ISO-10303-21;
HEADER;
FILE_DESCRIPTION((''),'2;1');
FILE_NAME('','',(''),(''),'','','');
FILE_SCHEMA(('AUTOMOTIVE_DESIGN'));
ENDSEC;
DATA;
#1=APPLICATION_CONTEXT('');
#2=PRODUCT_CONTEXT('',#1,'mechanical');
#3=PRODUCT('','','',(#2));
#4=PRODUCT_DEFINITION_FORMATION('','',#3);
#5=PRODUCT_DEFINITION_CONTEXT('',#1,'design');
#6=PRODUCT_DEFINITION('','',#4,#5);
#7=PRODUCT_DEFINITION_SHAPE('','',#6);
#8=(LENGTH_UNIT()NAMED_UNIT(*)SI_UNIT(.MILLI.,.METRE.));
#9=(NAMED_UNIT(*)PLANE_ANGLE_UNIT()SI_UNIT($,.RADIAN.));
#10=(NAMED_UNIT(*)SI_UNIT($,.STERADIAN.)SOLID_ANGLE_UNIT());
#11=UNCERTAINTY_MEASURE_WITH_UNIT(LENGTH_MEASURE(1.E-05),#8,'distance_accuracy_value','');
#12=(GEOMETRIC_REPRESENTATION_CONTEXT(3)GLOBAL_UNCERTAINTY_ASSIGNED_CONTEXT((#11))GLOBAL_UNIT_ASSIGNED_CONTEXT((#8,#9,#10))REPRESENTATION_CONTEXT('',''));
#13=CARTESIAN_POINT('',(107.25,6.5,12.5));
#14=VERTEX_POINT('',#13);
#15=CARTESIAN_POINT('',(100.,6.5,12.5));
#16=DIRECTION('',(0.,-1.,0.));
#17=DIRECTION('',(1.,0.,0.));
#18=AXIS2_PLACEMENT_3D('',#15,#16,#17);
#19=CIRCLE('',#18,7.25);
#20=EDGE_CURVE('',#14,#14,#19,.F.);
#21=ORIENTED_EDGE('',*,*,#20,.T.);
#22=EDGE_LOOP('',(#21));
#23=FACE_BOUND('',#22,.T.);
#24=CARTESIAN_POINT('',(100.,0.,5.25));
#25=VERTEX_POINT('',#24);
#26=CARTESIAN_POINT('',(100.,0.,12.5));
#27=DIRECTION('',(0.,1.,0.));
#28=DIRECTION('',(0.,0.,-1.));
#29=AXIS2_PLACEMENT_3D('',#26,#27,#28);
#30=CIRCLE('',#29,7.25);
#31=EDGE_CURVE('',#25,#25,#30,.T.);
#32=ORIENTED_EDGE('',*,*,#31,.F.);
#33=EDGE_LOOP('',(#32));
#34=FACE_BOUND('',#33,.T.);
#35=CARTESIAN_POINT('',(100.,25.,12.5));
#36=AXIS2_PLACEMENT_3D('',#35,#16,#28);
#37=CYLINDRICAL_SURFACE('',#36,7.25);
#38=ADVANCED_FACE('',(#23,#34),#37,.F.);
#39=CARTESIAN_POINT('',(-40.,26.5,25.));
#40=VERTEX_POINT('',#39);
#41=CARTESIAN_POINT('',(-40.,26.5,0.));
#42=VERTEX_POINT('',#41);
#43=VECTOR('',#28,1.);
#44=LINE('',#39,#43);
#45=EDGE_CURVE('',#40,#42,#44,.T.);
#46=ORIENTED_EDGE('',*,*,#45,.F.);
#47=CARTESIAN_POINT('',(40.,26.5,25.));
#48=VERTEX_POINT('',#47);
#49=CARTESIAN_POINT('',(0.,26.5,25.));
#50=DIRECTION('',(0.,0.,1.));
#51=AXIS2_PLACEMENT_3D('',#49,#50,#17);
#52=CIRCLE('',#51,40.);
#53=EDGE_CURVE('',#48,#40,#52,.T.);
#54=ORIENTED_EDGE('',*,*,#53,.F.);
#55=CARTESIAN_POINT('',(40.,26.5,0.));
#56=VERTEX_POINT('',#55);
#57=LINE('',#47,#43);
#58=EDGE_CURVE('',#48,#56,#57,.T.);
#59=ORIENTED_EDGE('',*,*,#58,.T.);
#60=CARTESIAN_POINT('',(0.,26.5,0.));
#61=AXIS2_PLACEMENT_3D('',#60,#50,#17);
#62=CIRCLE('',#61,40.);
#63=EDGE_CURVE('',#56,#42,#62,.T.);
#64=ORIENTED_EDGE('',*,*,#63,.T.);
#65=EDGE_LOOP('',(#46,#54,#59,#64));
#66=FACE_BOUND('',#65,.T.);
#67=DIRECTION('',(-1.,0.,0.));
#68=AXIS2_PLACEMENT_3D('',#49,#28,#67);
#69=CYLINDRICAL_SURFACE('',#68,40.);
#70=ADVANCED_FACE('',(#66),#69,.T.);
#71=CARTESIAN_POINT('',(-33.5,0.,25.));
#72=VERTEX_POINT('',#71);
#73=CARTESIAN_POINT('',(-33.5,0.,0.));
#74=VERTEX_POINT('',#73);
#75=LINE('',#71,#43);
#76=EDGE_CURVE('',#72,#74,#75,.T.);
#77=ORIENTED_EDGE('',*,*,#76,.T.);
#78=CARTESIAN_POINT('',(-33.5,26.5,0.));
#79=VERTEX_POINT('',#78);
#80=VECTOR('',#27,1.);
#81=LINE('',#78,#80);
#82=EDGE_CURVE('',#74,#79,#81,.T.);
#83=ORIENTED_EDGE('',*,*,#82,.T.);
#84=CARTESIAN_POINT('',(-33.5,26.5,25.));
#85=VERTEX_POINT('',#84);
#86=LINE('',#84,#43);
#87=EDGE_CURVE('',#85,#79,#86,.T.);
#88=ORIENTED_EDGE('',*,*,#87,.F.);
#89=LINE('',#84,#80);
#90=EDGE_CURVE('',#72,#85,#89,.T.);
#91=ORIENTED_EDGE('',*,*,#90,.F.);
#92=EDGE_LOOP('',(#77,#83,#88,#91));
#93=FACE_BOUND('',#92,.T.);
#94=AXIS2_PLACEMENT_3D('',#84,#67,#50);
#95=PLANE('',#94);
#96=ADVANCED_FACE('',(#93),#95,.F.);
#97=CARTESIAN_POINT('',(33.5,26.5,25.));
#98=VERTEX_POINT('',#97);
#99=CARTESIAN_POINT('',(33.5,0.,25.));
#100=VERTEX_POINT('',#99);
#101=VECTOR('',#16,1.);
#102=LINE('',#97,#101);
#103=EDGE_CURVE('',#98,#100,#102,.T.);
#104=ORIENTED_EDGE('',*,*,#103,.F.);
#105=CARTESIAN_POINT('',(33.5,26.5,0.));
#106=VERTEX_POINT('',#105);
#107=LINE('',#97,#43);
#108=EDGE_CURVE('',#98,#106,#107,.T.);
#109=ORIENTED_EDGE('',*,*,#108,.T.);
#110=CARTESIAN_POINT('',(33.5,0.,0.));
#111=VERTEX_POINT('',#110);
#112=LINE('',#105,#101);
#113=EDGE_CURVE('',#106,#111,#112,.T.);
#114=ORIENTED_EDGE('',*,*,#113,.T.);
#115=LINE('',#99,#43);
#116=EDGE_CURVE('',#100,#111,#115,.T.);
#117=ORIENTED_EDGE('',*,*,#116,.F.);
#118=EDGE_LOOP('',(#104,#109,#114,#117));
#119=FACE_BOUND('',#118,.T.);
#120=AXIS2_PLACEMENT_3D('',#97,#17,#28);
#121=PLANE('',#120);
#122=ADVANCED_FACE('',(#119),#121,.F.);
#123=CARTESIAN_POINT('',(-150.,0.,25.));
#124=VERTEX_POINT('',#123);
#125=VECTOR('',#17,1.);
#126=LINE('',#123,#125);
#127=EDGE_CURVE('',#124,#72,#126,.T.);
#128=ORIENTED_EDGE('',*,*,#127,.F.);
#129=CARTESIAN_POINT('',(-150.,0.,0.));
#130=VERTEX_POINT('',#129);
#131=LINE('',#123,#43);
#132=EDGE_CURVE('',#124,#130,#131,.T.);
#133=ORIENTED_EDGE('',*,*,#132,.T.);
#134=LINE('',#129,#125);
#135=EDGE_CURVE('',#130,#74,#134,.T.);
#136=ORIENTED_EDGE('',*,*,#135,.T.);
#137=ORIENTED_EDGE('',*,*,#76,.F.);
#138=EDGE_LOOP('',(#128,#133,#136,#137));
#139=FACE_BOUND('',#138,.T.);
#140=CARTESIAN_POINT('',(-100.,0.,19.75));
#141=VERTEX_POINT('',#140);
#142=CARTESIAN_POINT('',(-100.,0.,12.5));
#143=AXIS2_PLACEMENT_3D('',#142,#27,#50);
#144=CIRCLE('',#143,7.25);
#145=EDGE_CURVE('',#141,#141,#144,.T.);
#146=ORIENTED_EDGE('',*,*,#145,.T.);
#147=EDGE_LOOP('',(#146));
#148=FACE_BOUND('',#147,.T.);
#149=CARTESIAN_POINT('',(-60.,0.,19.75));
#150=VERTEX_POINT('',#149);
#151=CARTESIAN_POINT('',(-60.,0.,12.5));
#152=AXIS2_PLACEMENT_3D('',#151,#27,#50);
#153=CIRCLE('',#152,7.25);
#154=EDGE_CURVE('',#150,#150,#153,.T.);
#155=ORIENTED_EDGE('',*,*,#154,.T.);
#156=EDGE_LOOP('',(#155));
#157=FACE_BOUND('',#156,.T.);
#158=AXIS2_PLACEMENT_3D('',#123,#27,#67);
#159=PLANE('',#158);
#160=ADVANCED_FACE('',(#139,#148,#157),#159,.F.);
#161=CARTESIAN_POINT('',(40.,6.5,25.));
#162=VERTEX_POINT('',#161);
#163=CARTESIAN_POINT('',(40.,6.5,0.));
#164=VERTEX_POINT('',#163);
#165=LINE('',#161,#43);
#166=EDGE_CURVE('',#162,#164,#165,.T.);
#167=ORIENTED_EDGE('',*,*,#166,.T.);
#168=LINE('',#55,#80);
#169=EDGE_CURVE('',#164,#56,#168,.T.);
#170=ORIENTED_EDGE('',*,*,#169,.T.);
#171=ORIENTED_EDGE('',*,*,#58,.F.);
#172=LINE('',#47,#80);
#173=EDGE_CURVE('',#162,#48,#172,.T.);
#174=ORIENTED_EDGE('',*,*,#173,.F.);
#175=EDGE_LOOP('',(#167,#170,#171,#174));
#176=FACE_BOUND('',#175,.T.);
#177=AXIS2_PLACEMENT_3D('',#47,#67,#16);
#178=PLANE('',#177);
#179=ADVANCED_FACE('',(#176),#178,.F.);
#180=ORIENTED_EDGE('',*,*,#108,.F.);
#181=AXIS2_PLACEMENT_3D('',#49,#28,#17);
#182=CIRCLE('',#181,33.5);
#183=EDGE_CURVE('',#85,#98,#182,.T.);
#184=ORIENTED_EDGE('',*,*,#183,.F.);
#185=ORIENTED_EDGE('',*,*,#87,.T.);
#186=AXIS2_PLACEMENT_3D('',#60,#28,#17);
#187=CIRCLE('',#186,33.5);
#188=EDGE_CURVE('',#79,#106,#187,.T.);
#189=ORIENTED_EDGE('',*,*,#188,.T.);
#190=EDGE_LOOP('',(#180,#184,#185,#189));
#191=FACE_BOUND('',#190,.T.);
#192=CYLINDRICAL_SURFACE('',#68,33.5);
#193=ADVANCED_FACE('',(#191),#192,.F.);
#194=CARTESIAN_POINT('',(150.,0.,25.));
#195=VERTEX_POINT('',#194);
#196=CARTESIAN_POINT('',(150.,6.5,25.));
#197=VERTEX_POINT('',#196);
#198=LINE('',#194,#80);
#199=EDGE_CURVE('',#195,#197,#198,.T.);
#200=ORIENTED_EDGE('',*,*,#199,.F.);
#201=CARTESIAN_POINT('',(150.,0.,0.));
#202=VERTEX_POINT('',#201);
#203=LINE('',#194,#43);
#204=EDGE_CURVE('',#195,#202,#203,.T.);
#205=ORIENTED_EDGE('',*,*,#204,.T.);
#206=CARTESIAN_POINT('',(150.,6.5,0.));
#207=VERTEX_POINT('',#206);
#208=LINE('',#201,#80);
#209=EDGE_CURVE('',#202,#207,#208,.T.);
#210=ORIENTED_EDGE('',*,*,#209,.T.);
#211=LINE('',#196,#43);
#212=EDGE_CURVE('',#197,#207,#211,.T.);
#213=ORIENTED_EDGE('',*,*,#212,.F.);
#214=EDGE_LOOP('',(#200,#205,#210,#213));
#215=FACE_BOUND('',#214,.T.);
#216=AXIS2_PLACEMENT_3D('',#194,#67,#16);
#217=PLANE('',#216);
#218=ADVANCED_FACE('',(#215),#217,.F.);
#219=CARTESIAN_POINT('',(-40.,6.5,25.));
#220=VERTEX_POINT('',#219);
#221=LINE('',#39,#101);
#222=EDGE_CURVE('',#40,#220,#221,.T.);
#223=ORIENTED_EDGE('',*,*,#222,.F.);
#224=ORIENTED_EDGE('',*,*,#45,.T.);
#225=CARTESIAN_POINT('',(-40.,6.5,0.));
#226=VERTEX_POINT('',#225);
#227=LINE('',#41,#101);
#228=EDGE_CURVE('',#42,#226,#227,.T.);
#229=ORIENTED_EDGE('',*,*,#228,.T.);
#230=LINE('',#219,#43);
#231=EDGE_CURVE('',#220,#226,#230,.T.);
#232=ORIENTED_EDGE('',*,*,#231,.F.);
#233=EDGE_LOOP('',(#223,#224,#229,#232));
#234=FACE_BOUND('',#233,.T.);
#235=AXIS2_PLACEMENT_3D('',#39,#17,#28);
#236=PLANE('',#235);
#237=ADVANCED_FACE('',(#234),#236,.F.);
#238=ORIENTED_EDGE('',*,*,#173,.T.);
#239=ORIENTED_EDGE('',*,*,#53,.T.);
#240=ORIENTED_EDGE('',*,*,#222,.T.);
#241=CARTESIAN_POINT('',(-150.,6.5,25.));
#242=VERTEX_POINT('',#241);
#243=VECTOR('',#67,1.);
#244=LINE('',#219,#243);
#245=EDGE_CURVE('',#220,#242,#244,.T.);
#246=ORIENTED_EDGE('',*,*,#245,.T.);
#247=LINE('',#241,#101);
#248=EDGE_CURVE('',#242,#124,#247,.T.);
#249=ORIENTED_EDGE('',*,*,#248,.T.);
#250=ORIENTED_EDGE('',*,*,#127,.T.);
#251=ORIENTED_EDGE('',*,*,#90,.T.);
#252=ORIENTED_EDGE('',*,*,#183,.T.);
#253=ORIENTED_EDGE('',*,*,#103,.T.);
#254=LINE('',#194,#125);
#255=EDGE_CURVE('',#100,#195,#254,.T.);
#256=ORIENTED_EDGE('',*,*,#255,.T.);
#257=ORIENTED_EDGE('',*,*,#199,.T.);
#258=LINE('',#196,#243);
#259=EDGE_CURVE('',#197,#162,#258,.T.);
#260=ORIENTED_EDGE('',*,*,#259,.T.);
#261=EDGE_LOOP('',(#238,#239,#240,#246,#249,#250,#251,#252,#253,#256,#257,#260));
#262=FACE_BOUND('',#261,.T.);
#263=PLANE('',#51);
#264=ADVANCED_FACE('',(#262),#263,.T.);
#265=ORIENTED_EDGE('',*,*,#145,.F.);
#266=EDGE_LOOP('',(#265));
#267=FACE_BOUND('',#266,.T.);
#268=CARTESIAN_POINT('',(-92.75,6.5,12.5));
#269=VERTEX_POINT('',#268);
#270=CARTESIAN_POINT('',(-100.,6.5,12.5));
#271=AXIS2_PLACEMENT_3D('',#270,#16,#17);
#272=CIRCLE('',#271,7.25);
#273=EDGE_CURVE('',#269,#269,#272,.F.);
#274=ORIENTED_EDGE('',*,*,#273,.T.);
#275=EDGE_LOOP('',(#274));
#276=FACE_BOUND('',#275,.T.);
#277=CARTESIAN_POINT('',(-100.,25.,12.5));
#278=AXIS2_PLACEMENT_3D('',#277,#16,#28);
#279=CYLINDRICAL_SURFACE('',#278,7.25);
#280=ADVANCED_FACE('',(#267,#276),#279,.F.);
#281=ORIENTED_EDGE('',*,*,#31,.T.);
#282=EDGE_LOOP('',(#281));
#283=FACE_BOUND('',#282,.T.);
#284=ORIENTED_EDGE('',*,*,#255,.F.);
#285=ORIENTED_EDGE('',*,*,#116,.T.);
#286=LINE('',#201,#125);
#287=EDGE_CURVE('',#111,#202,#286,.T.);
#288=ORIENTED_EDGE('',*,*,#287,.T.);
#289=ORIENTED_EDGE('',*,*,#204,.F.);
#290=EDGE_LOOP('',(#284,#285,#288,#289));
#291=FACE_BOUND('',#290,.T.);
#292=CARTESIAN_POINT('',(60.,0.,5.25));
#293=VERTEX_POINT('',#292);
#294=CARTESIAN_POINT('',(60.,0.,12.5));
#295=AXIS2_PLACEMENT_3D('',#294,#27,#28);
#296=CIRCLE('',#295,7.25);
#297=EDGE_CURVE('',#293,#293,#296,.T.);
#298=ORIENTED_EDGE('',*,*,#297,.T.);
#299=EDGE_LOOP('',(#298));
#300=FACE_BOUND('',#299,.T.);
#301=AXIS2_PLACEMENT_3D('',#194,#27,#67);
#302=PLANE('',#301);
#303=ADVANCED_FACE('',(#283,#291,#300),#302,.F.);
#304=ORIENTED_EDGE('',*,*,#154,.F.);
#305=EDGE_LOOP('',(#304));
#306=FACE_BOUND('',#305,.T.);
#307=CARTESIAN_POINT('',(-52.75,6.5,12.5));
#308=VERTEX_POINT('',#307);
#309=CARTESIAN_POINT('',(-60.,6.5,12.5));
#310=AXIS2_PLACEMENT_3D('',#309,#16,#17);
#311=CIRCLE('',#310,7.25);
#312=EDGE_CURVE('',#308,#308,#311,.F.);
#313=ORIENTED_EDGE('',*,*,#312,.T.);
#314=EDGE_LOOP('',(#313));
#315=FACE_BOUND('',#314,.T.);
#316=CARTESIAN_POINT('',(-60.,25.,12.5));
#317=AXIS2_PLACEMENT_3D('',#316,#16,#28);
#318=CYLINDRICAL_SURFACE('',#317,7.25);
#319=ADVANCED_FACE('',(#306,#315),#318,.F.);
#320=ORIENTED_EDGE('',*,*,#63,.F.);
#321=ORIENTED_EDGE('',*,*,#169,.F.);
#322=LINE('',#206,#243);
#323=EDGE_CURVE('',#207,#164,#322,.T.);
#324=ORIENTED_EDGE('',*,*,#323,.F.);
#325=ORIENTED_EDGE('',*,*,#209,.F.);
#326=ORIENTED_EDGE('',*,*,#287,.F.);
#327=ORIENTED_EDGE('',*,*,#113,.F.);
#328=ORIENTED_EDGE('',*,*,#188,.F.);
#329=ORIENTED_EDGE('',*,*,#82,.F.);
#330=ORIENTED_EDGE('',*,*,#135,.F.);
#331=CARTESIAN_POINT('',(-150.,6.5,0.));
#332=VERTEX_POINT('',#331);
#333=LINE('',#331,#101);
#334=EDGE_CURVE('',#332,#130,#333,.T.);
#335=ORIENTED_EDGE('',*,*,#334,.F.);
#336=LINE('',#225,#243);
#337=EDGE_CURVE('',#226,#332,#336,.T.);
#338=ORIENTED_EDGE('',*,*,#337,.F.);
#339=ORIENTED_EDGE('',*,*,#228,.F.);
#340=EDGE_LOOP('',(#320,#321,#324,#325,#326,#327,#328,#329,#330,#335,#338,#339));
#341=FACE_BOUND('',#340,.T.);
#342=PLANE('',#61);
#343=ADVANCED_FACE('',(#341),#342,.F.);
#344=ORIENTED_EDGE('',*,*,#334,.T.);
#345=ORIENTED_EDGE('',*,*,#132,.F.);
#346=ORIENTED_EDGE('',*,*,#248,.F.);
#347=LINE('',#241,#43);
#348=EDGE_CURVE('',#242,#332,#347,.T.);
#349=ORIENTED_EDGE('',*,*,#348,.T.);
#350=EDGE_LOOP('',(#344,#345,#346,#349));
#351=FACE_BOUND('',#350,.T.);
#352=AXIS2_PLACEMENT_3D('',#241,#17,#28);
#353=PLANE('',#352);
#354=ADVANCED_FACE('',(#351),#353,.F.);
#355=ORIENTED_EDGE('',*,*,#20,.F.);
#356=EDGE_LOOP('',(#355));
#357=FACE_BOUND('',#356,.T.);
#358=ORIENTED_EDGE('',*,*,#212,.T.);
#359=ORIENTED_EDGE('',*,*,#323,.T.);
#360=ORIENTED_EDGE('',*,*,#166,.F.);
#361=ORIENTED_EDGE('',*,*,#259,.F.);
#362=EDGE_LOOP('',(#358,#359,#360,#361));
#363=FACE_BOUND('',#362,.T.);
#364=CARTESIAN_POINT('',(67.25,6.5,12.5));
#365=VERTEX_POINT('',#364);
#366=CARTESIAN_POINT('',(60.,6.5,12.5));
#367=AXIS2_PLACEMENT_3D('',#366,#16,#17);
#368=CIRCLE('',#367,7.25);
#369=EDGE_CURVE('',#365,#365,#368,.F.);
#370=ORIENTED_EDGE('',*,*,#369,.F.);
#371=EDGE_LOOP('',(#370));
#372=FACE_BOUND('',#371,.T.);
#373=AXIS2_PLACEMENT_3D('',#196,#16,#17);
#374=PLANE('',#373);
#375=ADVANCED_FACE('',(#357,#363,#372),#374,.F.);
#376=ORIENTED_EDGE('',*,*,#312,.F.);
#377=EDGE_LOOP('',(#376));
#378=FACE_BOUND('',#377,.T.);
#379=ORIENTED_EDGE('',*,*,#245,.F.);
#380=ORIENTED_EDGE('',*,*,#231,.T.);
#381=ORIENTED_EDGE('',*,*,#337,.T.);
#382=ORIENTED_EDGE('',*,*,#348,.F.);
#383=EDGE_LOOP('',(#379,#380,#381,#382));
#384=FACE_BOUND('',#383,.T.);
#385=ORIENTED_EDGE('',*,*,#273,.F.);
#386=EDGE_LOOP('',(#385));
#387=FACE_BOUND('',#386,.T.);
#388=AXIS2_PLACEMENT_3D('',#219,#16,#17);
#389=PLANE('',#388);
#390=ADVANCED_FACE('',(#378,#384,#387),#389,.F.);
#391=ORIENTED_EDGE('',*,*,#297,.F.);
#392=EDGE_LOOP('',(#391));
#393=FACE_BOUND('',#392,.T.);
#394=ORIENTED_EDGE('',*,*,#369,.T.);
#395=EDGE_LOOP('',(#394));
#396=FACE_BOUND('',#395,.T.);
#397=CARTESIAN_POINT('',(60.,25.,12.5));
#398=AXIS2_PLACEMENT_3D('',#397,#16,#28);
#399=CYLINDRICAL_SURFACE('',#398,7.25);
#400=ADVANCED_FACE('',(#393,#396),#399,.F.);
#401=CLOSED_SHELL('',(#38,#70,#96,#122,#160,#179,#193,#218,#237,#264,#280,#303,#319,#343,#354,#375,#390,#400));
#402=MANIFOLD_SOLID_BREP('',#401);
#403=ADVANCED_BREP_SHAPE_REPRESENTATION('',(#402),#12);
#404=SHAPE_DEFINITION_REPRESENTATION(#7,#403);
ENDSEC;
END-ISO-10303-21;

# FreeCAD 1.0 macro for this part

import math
import FreeCAD as App
import Part
import Sketcher
from FreeCAD import Vector

doc = App.newDocument("Part")
body = doc.addObject("PartDesign::Body", "Body")

# Sketch on XY plane
sketch1 = body.newObject("Sketcher::SketchObject", "Sketch")
sketch1.AttachmentSupport = (doc.getObject("XY_Plane"), [""])
sketch1.MapMode = "FlatFace"
sketch1.addGeometry([
    Part.LineSegment(Vector(150, 0, 0), Vector(150, 6, 0)),  # 0
    Part.LineSegment(Vector(150, 6, 0), Vector(40, 6, 0)),  # 1
    Part.LineSegment(Vector(40, 6, 0), Vector(40, 26, 0)),  # 2
    Part.ArcOfCircle(Part.Circle(Vector(0, 26, 0), Vector(0, 0, 1), 40), math.radians(0), math.radians(180)),  # 3
    Part.LineSegment(Vector(-40, 26, 0), Vector(-40, 6, 0)),  # 4
    Part.LineSegment(Vector(-40, 6, 0), Vector(-150, 6, 0)),  # 5
    Part.LineSegment(Vector(-150, 6, 0), Vector(-150, 0, 0)),  # 6
    Part.LineSegment(Vector(-150, 0, 0), Vector(-34, 0, 0)),  # 7
    Part.LineSegment(Vector(-34, 0, 0), Vector(-34, 26, 0)),  # 8
    Part.ArcOfCircle(Part.Circle(Vector(0, 26, 0), Vector(0, 0, 1), 34), math.radians(0), math.radians(180)),  # 9
    Part.LineSegment(Vector(34, 26, 0), Vector(34, 0, 0)),  # 10
    Part.LineSegment(Vector(34, 0, 0), Vector(150, 0, 0)),  # 11
], False)
sketch1.addConstraint([
    Sketcher.Constraint("Coincident", 0, 2, 1, 1),
    Sketcher.Constraint("Coincident", 1, 2, 2, 1),
    Sketcher.Constraint("Tangent", 2, 2, 3, 1),
    Sketcher.Constraint("Tangent", 3, 2, 4, 1),
    Sketcher.Constraint("Coincident", 4, 2, 5, 1),
    Sketcher.Constraint("Coincident", 5, 2, 6, 1),
    Sketcher.Constraint("Coincident", 6, 2, 7, 1),
    Sketcher.Constraint("Coincident", 7, 2, 8, 1),
    Sketcher.Constraint("Tangent", 8, 2, 9, 2),
    Sketcher.Constraint("Tangent", 9, 1, 10, 1),
    Sketcher.Constraint("Coincident", 10, 2, 11, 1),
    Sketcher.Constraint("Coincident", 11, 2, 0, 1),
    Sketcher.Constraint("Vertical", 0),
    Sketcher.Constraint("Horizontal", 1),
    Sketcher.Constraint("Vertical", 2),
    Sketcher.Constraint("Vertical", 4),
    Sketcher.Constraint("Horizontal", 5),
    Sketcher.Constraint("Vertical", 6),
    Sketcher.Constraint("Horizontal", 7),
    Sketcher.Constraint("Vertical", 8),
    Sketcher.Constraint("Vertical", 10),
    Sketcher.Constraint("Horizontal", 11),
    Sketcher.Constraint("Coincident", 9, 3, 3, 3),
    Sketcher.Constraint("Symmetric", 7, 2, 10, 2, -1, 1),
    Sketcher.Constraint("Symmetric", 0, 2, 5, 2, -2),
    Sketcher.Constraint("PointOnObject", 6, 2, -1),
    Sketcher.Constraint("Radius", 3, 40.0),
    Sketcher.Constraint("Radius", 9, 33.5),
    Sketcher.Constraint("DistanceX", 1, 2, 1, 1, 110.0),
    Sketcher.Constraint("DistanceY", 2, 1, 2, 2, 20.0),
    Sketcher.Constraint("DistanceY", 0, 1, 0, 2, 6.5),
])
pad1 = body.newObject("PartDesign::Pad", "Pad")
pad1.Profile = sketch1
pad1.Length = 25

# Sketch on XZ plane
sketch2 = body.newObject("Sketcher::SketchObject", "Sketch001")
sketch2.AttachmentSupport = (doc.getObject("XZ_Plane"), [""])
sketch2.MapMode = "FlatFace"
sketch2.addGeometry([
    Part.Circle(Vector(-60, 12, 0), Vector(0, 0, 1), 7),
    Part.Circle(Vector(-100, 12, 0), Vector(0, 0, 1), 7),
    Part.Circle(Vector(60, 12, 0), Vector(0, 0, 1), 7),
    Part.Circle(Vector(100, 12, 0), Vector(0, 0, 1), 7),
], False)
sketch2.addConstraint([
    Sketcher.Constraint("Equal", 0, 1),
    Sketcher.Constraint("Equal", 1, 2),
    Sketcher.Constraint("Equal", 2, 3),
    Sketcher.Constraint("Symmetric", 0, 3, 2, 3, -2),
    Sketcher.Constraint("Symmetric", 1, 3, 3, 3, -2),
    Sketcher.Constraint("Horizontal", 0, 3, 1, 3),
    Sketcher.Constraint("Diameter", 0, 14.5),
    Sketcher.Constraint("DistanceX", 0, 3, -1, 1, 60.0),
    Sketcher.Constraint("DistanceX", 1, 3, -1, 1, 100.0),
    Sketcher.Constraint("DistanceY", -1, 1, 0, 3, 12.5),
])
pocket1 = body.newObject("PartDesign::Pocket", "Pocket")
pocket1.Profile = sketch2
pocket1.Length = 25

doc.recompute()
